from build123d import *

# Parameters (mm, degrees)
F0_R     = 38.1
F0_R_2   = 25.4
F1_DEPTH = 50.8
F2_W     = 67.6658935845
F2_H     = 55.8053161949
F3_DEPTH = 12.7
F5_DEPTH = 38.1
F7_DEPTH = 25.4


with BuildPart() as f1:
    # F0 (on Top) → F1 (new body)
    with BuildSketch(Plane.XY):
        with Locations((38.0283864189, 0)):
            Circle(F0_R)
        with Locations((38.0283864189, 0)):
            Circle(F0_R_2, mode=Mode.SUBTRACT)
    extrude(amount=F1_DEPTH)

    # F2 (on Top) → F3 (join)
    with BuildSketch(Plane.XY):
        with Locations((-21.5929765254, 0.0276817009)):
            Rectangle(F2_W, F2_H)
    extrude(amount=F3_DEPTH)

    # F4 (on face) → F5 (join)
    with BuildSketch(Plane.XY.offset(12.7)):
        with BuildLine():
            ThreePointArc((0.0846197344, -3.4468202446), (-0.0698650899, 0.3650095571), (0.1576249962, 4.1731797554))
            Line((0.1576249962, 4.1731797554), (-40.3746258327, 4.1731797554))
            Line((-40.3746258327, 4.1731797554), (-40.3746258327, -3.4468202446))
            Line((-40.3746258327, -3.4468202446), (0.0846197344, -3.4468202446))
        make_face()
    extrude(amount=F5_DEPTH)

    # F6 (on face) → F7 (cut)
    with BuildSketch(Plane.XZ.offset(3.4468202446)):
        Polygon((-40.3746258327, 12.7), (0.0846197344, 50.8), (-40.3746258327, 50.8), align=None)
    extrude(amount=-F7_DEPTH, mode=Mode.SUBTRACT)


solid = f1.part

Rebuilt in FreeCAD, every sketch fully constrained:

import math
import FreeCAD as App
import Part
import Sketcher

V = App.Vector
Q = App.Units.Quantity

doc = App.newDocument("Part")
body = doc.addObject("PartDesign::Body", "Body")

sketch1 = body.newObject("Sketcher::SketchObject", "Sketch")
sketch1.AttachmentSupport = (doc.getObject("XY_Plane"), [""])
sketch1.MapMode = "FlatFace"
sketch1.addGeometry([
    Part.Circle(V(38.028386, 0, 0), V(0, 0, 1), 38.1),
    Part.Circle(V(38.028386, 0, 0), V(0, 0, 1), 25.4),
], False)
sketch1.addConstraint([
    Sketcher.Constraint("Coincident", 1, 3, 0, 3),
    Sketcher.Constraint("PointOnObject", 0, 3, -1),
    Sketcher.Constraint("Diameter", 0, Q("3 in")),
    Sketcher.Constraint("Diameter", 1, Q("2 in")),
    Sketcher.Constraint("DistanceX", -1, 1, 0, 3, Q("38.028386 mm")),
])
pad1 = body.newObject("PartDesign::Pad", "Pad")
pad1.Profile = sketch1
pad1.Length = Q("2 in")

sketch2 = body.newObject("Sketcher::SketchObject", "Sketch001")
sketch2.AttachmentSupport = (doc.getObject("XY_Plane"), [""])
sketch2.MapMode = "FlatFace"
sketch2.addGeometry([
    Part.LineSegment(V(-55.425923, 27.93034, 0), V(-55.425923, -27.874976, 0)),
    Part.LineSegment(V(-55.425923, -27.874976, 0), V(12.23997, -27.874976, 0)),
    Part.LineSegment(V(12.23997, -27.874976, 0), V(12.23997, 27.93034, 0)),
    Part.LineSegment(V(12.23997, 27.93034, 0), V(-55.425923, 27.93034, 0)),
], False)
sketch2.addConstraint([
    Sketcher.Constraint("Coincident", 0, 2, 1, 1),
    Sketcher.Constraint("Coincident", 1, 2, 2, 1),
    Sketcher.Constraint("Coincident", 2, 2, 3, 1),
    Sketcher.Constraint("Coincident", 3, 2, 0, 1),
    Sketcher.Constraint("Vertical", 0),
    Sketcher.Constraint("Horizontal", 1),
    Sketcher.Constraint("Vertical", 2),
    Sketcher.Constraint("Horizontal", 3),
    Sketcher.Constraint("DistanceX", 1, 1, 1, 2, Q("67.665894 mm")),
    Sketcher.Constraint("DistanceY", 0, 2, 0, 1, Q("55.805316 mm")),
    Sketcher.Constraint("DistanceX", -1, 1, 1, 2, Q("12.23997 mm")),
    Sketcher.Constraint("DistanceY", -1, 1, 2, 2, Q("27.93034 mm")),
])
pad2 = body.newObject("PartDesign::Pad", "Pad001")
pad2.Profile = sketch2
pad2.Length = Q("0.5 in")

sketch3 = body.newObject("Sketcher::SketchObject", "Sketch002")
sketch3.AttachmentSupport = (doc.getObject("XY_Plane"), [""])
sketch3.MapMode = "FlatFace"
sketch3.AttachmentOffset = App.Placement(V(0, 0, 0.5 * 25.4), App.Rotation())
sketch3.addGeometry([
    Part.ArcOfCircle(Part.Circle(V(38.028386, 0, 0), V(0, 0, 1), 38.1), math.radians(173.711646), math.radians(185.190515)),
    Part.LineSegment(V(0.157625, 4.17318, 0), V(-40.374626, 4.17318, 0)),
    Part.LineSegment(V(-40.374626, 4.17318, 0), V(-40.374626, -3.44682, 0)),
    Part.LineSegment(V(-40.374626, -3.44682, 0), V(0.08462, -3.44682, 0)),
], False)
sketch3.addConstraint([
    Sketcher.Constraint("Coincident", 0, 1, 1, 1),
    Sketcher.Constraint("Coincident", 1, 2, 2, 1),
    Sketcher.Constraint("Coincident", 2, 2, 3, 1),
    Sketcher.Constraint("Coincident", 3, 2, 0, 2),
    Sketcher.Constraint("Horizontal", 1),
    Sketcher.Constraint("Vertical", 2),
    Sketcher.Constraint("Horizontal", 3),
    Sketcher.Constraint("PointOnObject", 0, 3, -1),
    Sketcher.Constraint("Radius", 0, Q("1.5 in")),
    Sketcher.Constraint("DistanceY", 2, 2, 2, 1, Q("0.3 in")),
    Sketcher.Constraint("DistanceX", 1, 2, 1, 1, Q("40.532251 mm")),
    Sketcher.Constraint("DistanceX", 3, 1, 3, 2, Q("40.459246 mm")),
    Sketcher.Constraint("DistanceX", -1, 1, 3, 2, Q("0.08462 mm")),
])
pad3 = body.newObject("PartDesign::Pad", "Pad002")
pad3.Profile = sketch3
pad3.Length = Q("1.5 in")

sketch4 = body.newObject("Sketcher::SketchObject", "Sketch003")
sketch4.AttachmentSupport = (doc.getObject("XZ_Plane"), [""])
sketch4.MapMode = "FlatFace"
sketch4.AttachmentOffset = App.Placement(V(0, 0, 3.44682), App.Rotation())
sketch4.addGeometry([
    Part.LineSegment(V(-40.374626, 12.7, 0), V(0.08462, 50.8, 0)),
    Part.LineSegment(V(0.08462, 50.8, 0), V(-40.374626, 50.8, 0)),
    Part.LineSegment(V(-40.374626, 50.8, 0), V(-40.374626, 12.7, 0)),
], False)
sketch4.addConstraint([
    Sketcher.Constraint("Coincident", 0, 2, 1, 1),
    Sketcher.Constraint("Coincident", 1, 2, 2, 1),
    Sketcher.Constraint("Coincident", 2, 2, 0, 1),
    Sketcher.Constraint("Horizontal", 1),
    Sketcher.Constraint("Vertical", 2),
    Sketcher.Constraint("DistanceY", 2, 2, 2, 1, Q("1.5 in")),
    Sketcher.Constraint("DistanceY", -1, 1, 0, 2, Q("2 in")),
    Sketcher.Constraint("Distance", 0, Q("55.574819 mm")),
    Sketcher.Constraint("DistanceX", -1, 1, 0, 2, Q("0.08462 mm")),
])
pocket1 = body.newObject("PartDesign::Pocket", "Pocket")
pocket1.Profile = sketch4
pocket1.Length = Q("1 in")

doc.recompute()
